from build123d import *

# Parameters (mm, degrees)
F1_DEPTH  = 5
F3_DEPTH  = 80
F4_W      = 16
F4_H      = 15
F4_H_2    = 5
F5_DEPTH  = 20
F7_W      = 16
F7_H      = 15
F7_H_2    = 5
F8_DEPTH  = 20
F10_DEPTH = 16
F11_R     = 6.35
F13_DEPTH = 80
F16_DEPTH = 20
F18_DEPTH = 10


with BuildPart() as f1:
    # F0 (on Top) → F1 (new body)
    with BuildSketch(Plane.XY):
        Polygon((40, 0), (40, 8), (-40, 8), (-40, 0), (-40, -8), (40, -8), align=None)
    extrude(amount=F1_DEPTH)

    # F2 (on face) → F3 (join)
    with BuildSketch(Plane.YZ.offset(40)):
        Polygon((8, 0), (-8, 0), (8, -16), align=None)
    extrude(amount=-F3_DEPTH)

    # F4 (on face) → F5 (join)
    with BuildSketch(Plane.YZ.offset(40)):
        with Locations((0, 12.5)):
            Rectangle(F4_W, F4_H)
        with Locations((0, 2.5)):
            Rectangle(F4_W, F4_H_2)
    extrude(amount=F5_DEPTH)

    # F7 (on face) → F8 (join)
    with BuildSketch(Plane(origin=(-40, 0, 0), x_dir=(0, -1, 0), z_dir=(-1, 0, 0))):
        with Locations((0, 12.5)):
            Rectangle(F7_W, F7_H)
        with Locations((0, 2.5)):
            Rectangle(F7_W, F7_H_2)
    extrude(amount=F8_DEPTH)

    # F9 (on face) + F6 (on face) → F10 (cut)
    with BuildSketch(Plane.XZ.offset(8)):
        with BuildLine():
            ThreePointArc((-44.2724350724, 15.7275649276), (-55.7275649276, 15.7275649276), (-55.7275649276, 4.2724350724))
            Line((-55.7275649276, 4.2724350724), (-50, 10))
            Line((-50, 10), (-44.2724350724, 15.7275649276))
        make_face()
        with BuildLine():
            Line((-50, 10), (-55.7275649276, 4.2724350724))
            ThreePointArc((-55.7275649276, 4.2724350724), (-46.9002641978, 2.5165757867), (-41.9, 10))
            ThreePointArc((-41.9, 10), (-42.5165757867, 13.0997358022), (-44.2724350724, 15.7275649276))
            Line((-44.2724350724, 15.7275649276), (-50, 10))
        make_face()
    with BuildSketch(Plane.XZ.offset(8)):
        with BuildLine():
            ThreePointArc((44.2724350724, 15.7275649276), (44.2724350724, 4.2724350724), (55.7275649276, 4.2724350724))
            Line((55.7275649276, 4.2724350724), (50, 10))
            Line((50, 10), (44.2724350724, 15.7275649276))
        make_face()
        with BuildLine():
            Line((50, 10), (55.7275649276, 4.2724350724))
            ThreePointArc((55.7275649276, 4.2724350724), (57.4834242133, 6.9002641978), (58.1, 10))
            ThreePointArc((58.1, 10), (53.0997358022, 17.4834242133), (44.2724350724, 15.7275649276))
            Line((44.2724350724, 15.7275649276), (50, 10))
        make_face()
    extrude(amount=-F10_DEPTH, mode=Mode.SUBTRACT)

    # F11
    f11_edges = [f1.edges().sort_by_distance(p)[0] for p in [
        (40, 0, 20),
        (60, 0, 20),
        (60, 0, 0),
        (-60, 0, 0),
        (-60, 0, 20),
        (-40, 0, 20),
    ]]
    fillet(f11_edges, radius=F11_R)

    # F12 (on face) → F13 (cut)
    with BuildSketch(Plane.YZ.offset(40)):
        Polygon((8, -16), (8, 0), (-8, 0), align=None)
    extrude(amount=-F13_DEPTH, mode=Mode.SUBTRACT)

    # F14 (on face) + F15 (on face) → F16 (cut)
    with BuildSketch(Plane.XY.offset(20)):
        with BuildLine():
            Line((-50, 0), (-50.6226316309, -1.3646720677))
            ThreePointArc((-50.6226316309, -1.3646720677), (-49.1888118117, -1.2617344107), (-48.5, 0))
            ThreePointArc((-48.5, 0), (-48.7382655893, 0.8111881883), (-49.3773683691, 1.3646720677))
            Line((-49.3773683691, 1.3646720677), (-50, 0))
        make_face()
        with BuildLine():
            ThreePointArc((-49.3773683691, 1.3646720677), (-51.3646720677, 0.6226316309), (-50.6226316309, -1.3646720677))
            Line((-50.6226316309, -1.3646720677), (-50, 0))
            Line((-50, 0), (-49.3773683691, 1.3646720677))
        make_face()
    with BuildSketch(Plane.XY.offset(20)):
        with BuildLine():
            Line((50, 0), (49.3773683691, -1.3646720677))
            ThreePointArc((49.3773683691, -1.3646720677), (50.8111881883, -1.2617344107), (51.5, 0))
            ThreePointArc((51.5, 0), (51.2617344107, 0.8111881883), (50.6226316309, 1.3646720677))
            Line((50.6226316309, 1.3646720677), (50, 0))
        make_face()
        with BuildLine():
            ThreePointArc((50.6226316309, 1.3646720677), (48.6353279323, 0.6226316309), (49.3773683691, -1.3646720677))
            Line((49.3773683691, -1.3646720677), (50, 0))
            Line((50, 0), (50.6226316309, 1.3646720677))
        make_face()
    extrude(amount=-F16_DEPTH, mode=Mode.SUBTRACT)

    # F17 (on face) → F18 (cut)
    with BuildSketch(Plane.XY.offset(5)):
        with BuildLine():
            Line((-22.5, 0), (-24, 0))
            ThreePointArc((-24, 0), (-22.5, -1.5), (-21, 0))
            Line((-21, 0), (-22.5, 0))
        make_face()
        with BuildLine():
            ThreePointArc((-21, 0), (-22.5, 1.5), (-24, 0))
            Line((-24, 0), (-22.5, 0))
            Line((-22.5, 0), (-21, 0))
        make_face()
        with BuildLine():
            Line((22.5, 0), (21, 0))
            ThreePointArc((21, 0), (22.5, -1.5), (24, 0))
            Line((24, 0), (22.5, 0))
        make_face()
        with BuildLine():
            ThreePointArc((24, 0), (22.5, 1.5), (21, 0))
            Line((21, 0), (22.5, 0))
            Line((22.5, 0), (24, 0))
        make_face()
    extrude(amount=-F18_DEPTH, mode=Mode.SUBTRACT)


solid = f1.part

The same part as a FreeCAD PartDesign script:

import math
import FreeCAD as App
import Part
import Sketcher
from FreeCAD import Vector


def edges_at(feature, points):
    """Names of the edges that pass closest to the given points."""
    edges = feature.Shape.Edges
    near = lambda p: min(range(len(edges)), key=lambda i: edges[i].distToShape(Part.Vertex(*p))[0])
    return sorted({f"Edge{near(p) + 1}" for p in points})

doc = App.newDocument("Part")
body = doc.addObject("PartDesign::Body", "Body")

sketch1 = doc.addObject("Sketcher::SketchObject", "Sketch")
body.addObject(sketch1)
sketch1.AttachmentSupport = (doc.XY_Plane, [""])
sketch1.MapMode = "FlatFace"
sketch1.addGeometry(Part.LineSegment(Vector(40, 8, 0), Vector(-40, 8, 0)), False)
sketch1.addGeometry(Part.LineSegment(Vector(-40, 8, 0), Vector(-40, -8, 0)), False)
sketch1.addGeometry(Part.LineSegment(Vector(-40, -8, 0), Vector(40, -8, 0)), False)
sketch1.addGeometry(Part.LineSegment(Vector(40, -8, 0), Vector(40, 8, 0)), False)
sketch1.addConstraint(Sketcher.Constraint("Coincident", 0, 2, 1, 1))
sketch1.addConstraint(Sketcher.Constraint("Coincident", 1, 2, 2, 1))
sketch1.addConstraint(Sketcher.Constraint("Coincident", 2, 2, 3, 1))
sketch1.addConstraint(Sketcher.Constraint("Coincident", 3, 2, 0, 1))
sketch1.addConstraint(Sketcher.Constraint("Horizontal", 0))
sketch1.addConstraint(Sketcher.Constraint("Vertical", 1))
sketch1.addConstraint(Sketcher.Constraint("Horizontal", 2))
sketch1.addConstraint(Sketcher.Constraint("Vertical", 3))
sketch1.addConstraint(Sketcher.Constraint("Symmetric", 0, 2, 2, 2, -1, 1))
sketch1.addConstraint(Sketcher.Constraint("DistanceX", 0, 2, 0, 1, 80.0))
sketch1.addConstraint(Sketcher.Constraint("DistanceY", 1, 2, 1, 1, 16.0))
pad1 = doc.addObject("PartDesign::Pad", "Pad")
body.addObject(pad1)
pad1.Profile = sketch1
pad1.Length = 5

sketch2 = doc.addObject("Sketcher::SketchObject", "Sketch001")
body.addObject(sketch2)
sketch2.AttachmentSupport = (doc.YZ_Plane, [""])
sketch2.MapMode = "FlatFace"
sketch2.AttachmentOffset = App.Placement(Vector(0, 0, 40), App.Rotation())
sketch2.addGeometry(Part.LineSegment(Vector(8, 0, 0), Vector(-8, 0, 0)), False)
sketch2.addGeometry(Part.LineSegment(Vector(-8, 0, 0), Vector(8, -16, 0)), False)
sketch2.addGeometry(Part.LineSegment(Vector(8, -16, 0), Vector(8, 0, 0)), False)
sketch2.addConstraint(Sketcher.Constraint("Coincident", 0, 2, 1, 1))
sketch2.addConstraint(Sketcher.Constraint("Coincident", 1, 2, 2, 1))
sketch2.addConstraint(Sketcher.Constraint("Coincident", 2, 2, 0, 1))
sketch2.addConstraint(Sketcher.Constraint("Horizontal", 0))
sketch2.addConstraint(Sketcher.Constraint("Vertical", 2))
sketch2.addConstraint(Sketcher.Constraint("Symmetric", 0, 2, 2, 2, -1, 1))
sketch2.addConstraint(Sketcher.Constraint("Equal", 0, 2))
sketch2.addConstraint(Sketcher.Constraint("DistanceX", 0, 2, 0, 1, 16.0))
pad2 = doc.addObject("PartDesign::Pad", "Pad001")
body.addObject(pad2)
pad2.Profile = sketch2
pad2.Length = 80
pad2.Reversed = True

sketch3 = doc.addObject("Sketcher::SketchObject", "Sketch002")
body.addObject(sketch3)
sketch3.AttachmentSupport = (doc.YZ_Plane, [""])
sketch3.MapMode = "FlatFace"
sketch3.AttachmentOffset = App.Placement(Vector(0, 0, 40), App.Rotation())
sketch3.addGeometry(Part.LineSegment(Vector(-8, 20, 0), Vector(-8, 0, 0)), False)
sketch3.addGeometry(Part.LineSegment(Vector(-8, 0, 0), Vector(8, 0, 0)), False)
sketch3.addGeometry(Part.LineSegment(Vector(8, 0, 0), Vector(8, 20, 0)), False)
sketch3.addGeometry(Part.LineSegment(Vector(8, 20, 0), Vector(-8, 20, 0)), False)
sketch3.addConstraint(Sketcher.Constraint("Coincident", 0, 2, 1, 1))
sketch3.addConstraint(Sketcher.Constraint("Coincident", 1, 2, 2, 1))
sketch3.addConstraint(Sketcher.Constraint("Coincident", 2, 2, 3, 1))
sketch3.addConstraint(Sketcher.Constraint("Coincident", 3, 2, 0, 1))
sketch3.addConstraint(Sketcher.Constraint("Vertical", 0))
sketch3.addConstraint(Sketcher.Constraint("Horizontal", 1))
sketch3.addConstraint(Sketcher.Constraint("Vertical", 2))
sketch3.addConstraint(Sketcher.Constraint("Horizontal", 3))
sketch3.addConstraint(Sketcher.Constraint("Symmetric", 0, 2, 1, 2, -1, 1))
sketch3.addConstraint(Sketcher.Constraint("DistanceX", 1, 1, 1, 2, 16.0))
sketch3.addConstraint(Sketcher.Constraint("DistanceY", 0, 2, 0, 1, 20.0))
pad3 = doc.addObject("PartDesign::Pad", "Pad002")
body.addObject(pad3)
pad3.Profile = sketch3
pad3.Length = 20

sketch4 = doc.addObject("Sketcher::SketchObject", "Sketch003")
body.addObject(sketch4)
sketch4.AttachmentSupport = (doc.YZ_Plane, [""])
sketch4.MapMode = "FlatFace"
sketch4.AttachmentOffset = App.Placement(Vector(0, 0, -40), App.Rotation())
sketch4.addGeometry(Part.LineSegment(Vector(8, 20, 0), Vector(8, 0, 0)), False)
sketch4.addGeometry(Part.LineSegment(Vector(8, 0, 0), Vector(-8, 0, 0)), False)
sketch4.addGeometry(Part.LineSegment(Vector(-8, 0, 0), Vector(-8, 20, 0)), False)
sketch4.addGeometry(Part.LineSegment(Vector(-8, 20, 0), Vector(8, 20, 0)), False)
sketch4.addConstraint(Sketcher.Constraint("Coincident", 0, 2, 1, 1))
sketch4.addConstraint(Sketcher.Constraint("Coincident", 1, 2, 2, 1))
sketch4.addConstraint(Sketcher.Constraint("Coincident", 2, 2, 3, 1))
sketch4.addConstraint(Sketcher.Constraint("Coincident", 3, 2, 0, 1))
sketch4.addConstraint(Sketcher.Constraint("Vertical", 0))
sketch4.addConstraint(Sketcher.Constraint("Horizontal", 1))
sketch4.addConstraint(Sketcher.Constraint("Vertical", 2))
sketch4.addConstraint(Sketcher.Constraint("Horizontal", 3))
sketch4.addConstraint(Sketcher.Constraint("Symmetric", 0, 2, 1, 2, -1, 1))
sketch4.addConstraint(Sketcher.Constraint("DistanceX", 1, 2, 1, 1, 16.0))
sketch4.addConstraint(Sketcher.Constraint("DistanceY", 0, 2, 0, 1, 20.0))
pad4 = doc.addObject("PartDesign::Pad", "Pad003")
body.addObject(pad4)
pad4.Profile = sketch4
pad4.Length = 20
pad4.Reversed = True

sketch5 = doc.addObject("Sketcher::SketchObject", "Sketch004")
body.addObject(sketch5)
sketch5.AttachmentSupport = (doc.XZ_Plane, [""])
sketch5.MapMode = "FlatFace"
sketch5.AttachmentOffset = App.Placement(Vector(0, 0, 8), App.Rotation())
sketch5.addGeometry(Part.ArcOfCircle(Part.Circle(Vector(-50, 10, 0), Vector(0, 0, 1), 8), math.radians(45), math.radians(225)), False)
sketch5.addGeometry(Part.ArcOfCircle(Part.Circle(Vector(-50, 10, 0), Vector(0, 0, 1), 8), math.radians(-135), math.radians(0)), False)
sketch5.addGeometry(Part.ArcOfCircle(Part.Circle(Vector(-50, 10, 0), Vector(0, 0, 1), 8), math.radians(0), math.radians(45)), False)
sketch5.addGeometry(Part.ArcOfCircle(Part.Circle(Vector(50, 10, 0), Vector(0, 0, 1), 8), math.radians(135), math.radians(315)), False)
sketch5.addGeometry(Part.ArcOfCircle(Part.Circle(Vector(50, 10, 0), Vector(0, 0, 1), 8), math.radians(-45), math.radians(0)), False)
sketch5.addGeometry(Part.ArcOfCircle(Part.Circle(Vector(50, 10, 0), Vector(0, 0, 1), 8), math.radians(0), math.radians(135)), False)
sketch5.addConstraint(Sketcher.Constraint("Tangent", 0, 2, 1, 1))
sketch5.addConstraint(Sketcher.Constraint("Tangent", 1, 2, 2, 1))
sketch5.addConstraint(Sketcher.Constraint("Tangent", 2, 2, 0, 1))
sketch5.addConstraint(Sketcher.Constraint("Tangent", 3, 2, 4, 1))
sketch5.addConstraint(Sketcher.Constraint("Tangent", 4, 2, 5, 1))
sketch5.addConstraint(Sketcher.Constraint("Tangent", 5, 2, 3, 1))
sketch5.addConstraint(Sketcher.Constraint("Equal", 2, 3))
sketch5.addConstraint(Sketcher.Constraint("Symmetric", 0, 3, 3, 3, -2))
sketch5.addConstraint(Sketcher.Constraint("Horizontal", 5, 3, 1, 2))
sketch5.addConstraint(Sketcher.Constraint("Horizontal", 0, 2, 3, 2))
sketch5.addConstraint(Sketcher.Constraint("Horizontal", 1, 2, 4, 2))
sketch5.addConstraint(Sketcher.Constraint("Horizontal", 2, 2, 5, 2))
sketch5.addConstraint(Sketcher.Constraint("Radius", 0, 8.1))
sketch5.addConstraint(Sketcher.Constraint("DistanceX", 0, 3, -1, 1, 50.0))
sketch5.addConstraint(Sketcher.Constraint("DistanceY", -1, 1, 0, 3, 10.0))
sketch5.addConstraint(Sketcher.Constraint("DistanceX", 2, 2, 3, 2, 100.0))
sketch5.addConstraint(Sketcher.Constraint("DistanceX", 0, 2, 2, 2, 11.45513))
pocket1 = doc.addObject("PartDesign::Pocket", "Pocket")
body.addObject(pocket1)
pocket1.Profile = sketch5
pocket1.Length = 16
doc.recompute()

fillet = doc.addObject("PartDesign::Fillet", "Fillet")
body.addObject(fillet)
fillet.Base = (pocket1, edges_at(pocket1, [
    (40, 0, 20),
    (60, 0, 20),
    (60, 0, 0),
    (-60, 0, 0),
    (-60, 0, 20),
    (-40, 0, 20),
]))
fillet.Radius = 6.35

sketch6 = doc.addObject("Sketcher::SketchObject", "Sketch005")
body.addObject(sketch6)
sketch6.AttachmentSupport = (doc.YZ_Plane, [""])
sketch6.MapMode = "FlatFace"
sketch6.AttachmentOffset = App.Placement(Vector(0, 0, 40), App.Rotation())
sketch6.addGeometry(Part.LineSegment(Vector(8, -16, 0), Vector(8, 0, 0)), False)
sketch6.addGeometry(Part.LineSegment(Vector(8, 0, 0), Vector(-8, 0, 0)), False)
sketch6.addGeometry(Part.LineSegment(Vector(-8, 0, 0), Vector(8, -16, 0)), False)
sketch6.addConstraint(Sketcher.Constraint("Coincident", 0, 2, 1, 1))
sketch6.addConstraint(Sketcher.Constraint("Coincident", 1, 2, 2, 1))
sketch6.addConstraint(Sketcher.Constraint("Coincident", 2, 2, 0, 1))
sketch6.addConstraint(Sketcher.Constraint("Vertical", 0))
sketch6.addConstraint(Sketcher.Constraint("Horizontal", 1))
sketch6.addConstraint(Sketcher.Constraint("Symmetric", 0, 2, 1, 2, -1, 1))
sketch6.addConstraint(Sketcher.Constraint("Equal", 1, 0))
sketch6.addConstraint(Sketcher.Constraint("DistanceX", 1, 2, 1, 1, 16.0))
pocket2 = doc.addObject("PartDesign::Pocket", "Pocket001")
body.addObject(pocket2)
pocket2.Profile = sketch6
pocket2.Length = 80

sketch7 = doc.addObject("Sketcher::SketchObject", "Sketch006")
body.addObject(sketch7)
sketch7.AttachmentSupport = (doc.XY_Plane, [""])
sketch7.MapMode = "FlatFace"
sketch7.AttachmentOffset = App.Placement(Vector(0, 0, 20), App.Rotation())
sketch7.addGeometry(Part.ArcOfCircle(Part.Circle(Vector(-50, 0, 0), Vector(0, 0, 1), 1.5), math.radians(-115), math.radians(0)), False)
sketch7.addGeometry(Part.ArcOfCircle(Part.Circle(Vector(-50, 0, 0), Vector(0, 0, 1), 1.5), math.radians(0), math.radians(65)), False)
sketch7.addGeometry(Part.ArcOfCircle(Part.Circle(Vector(-50, 0, 0), Vector(0, 0, 1), 1.5), math.radians(65), math.radians(245)), False)
sketch7.addGeometry(Part.ArcOfCircle(Part.Circle(Vector(50, 0, 0), Vector(0, 0, 1), 1.5), math.radians(-115), math.radians(0)), False)
sketch7.addGeometry(Part.ArcOfCircle(Part.Circle(Vector(50, 0, 0), Vector(0, 0, 1), 1.5), math.radians(0), math.radians(65)), False)
sketch7.addGeometry(Part.ArcOfCircle(Part.Circle(Vector(50, 0, 0), Vector(0, 0, 1), 1.5), math.radians(65), math.radians(245)), False)
sketch7.addConstraint(Sketcher.Constraint("Tangent", 0, 2, 1, 1))
sketch7.addConstraint(Sketcher.Constraint("Tangent", 1, 2, 2, 1))
sketch7.addConstraint(Sketcher.Constraint("Tangent", 2, 2, 0, 1))
sketch7.addConstraint(Sketcher.Constraint("Tangent", 3, 2, 4, 1))
sketch7.addConstraint(Sketcher.Constraint("Tangent", 4, 2, 5, 1))
sketch7.addConstraint(Sketcher.Constraint("Tangent", 5, 2, 3, 1))
sketch7.addConstraint(Sketcher.Constraint("Equal", 2, 3))
sketch7.addConstraint(Sketcher.Constraint("Symmetric", 0, 3, 3, 3, -1, 1))
sketch7.addConstraint(Sketcher.Constraint("PointOnObject", 0, 3, -1))
sketch7.addConstraint(Sketcher.Constraint("PointOnObject", 0, 2, -1))
sketch7.addConstraint(Sketcher.Constraint("PointOnObject", 3, 2, -1))
sketch7.addConstraint(Sketcher.Constraint("Horizontal", 1, 2, 4, 2))
sketch7.addConstraint(Sketcher.Constraint("Horizontal", 2, 2, 5, 2))
sketch7.addConstraint(Sketcher.Constraint("Radius", 0, 1.5))
sketch7.addConstraint(Sketcher.Constraint("DistanceX", 0, 3, -1, 1, 50.0))
sketch7.addConstraint(Sketcher.Constraint("DistanceX", 1, 2, -1, 1, 49.377368))
sketch7.addConstraint(Sketcher.Constraint("DistanceX", 2, 2, -1, 1, 50.622632))
pocket3 = doc.addObject("PartDesign::Pocket", "Pocket002")
body.addObject(pocket3)
pocket3.Profile = sketch7
pocket3.Length = 20

sketch8 = doc.addObject("Sketcher::SketchObject", "Sketch007")
body.addObject(sketch8)
sketch8.AttachmentSupport = (doc.XY_Plane, [""])
sketch8.MapMode = "FlatFace"
sketch8.AttachmentOffset = App.Placement(Vector(0, 0, 5), App.Rotation())
sketch8.addGeometry(Part.Circle(Vector(-22.5, 0, 0), Vector(0, 0, 1), 1.5), False)
sketch8.addGeometry(Part.Circle(Vector(22.5, 0, 0), Vector(0, 0, 1), 1.5), False)
sketch8.addConstraint(Sketcher.Constraint("Equal", 0, 1))
sketch8.addConstraint(Sketcher.Constraint("Symmetric", 0, 3, 1, 3, -1, 1))
sketch8.addConstraint(Sketcher.Constraint("PointOnObject", 0, 3, -1))
sketch8.addConstraint(Sketcher.Constraint("Diameter", 0, 3.0))
sketch8.addConstraint(Sketcher.Constraint("DistanceX", 0, 3, 1, 3, 45.0))
pocket4 = doc.addObject("PartDesign::Pocket", "Pocket003")
body.addObject(pocket4)
pocket4.Profile = sketch8
pocket4.Length = 10

doc.recompute()
